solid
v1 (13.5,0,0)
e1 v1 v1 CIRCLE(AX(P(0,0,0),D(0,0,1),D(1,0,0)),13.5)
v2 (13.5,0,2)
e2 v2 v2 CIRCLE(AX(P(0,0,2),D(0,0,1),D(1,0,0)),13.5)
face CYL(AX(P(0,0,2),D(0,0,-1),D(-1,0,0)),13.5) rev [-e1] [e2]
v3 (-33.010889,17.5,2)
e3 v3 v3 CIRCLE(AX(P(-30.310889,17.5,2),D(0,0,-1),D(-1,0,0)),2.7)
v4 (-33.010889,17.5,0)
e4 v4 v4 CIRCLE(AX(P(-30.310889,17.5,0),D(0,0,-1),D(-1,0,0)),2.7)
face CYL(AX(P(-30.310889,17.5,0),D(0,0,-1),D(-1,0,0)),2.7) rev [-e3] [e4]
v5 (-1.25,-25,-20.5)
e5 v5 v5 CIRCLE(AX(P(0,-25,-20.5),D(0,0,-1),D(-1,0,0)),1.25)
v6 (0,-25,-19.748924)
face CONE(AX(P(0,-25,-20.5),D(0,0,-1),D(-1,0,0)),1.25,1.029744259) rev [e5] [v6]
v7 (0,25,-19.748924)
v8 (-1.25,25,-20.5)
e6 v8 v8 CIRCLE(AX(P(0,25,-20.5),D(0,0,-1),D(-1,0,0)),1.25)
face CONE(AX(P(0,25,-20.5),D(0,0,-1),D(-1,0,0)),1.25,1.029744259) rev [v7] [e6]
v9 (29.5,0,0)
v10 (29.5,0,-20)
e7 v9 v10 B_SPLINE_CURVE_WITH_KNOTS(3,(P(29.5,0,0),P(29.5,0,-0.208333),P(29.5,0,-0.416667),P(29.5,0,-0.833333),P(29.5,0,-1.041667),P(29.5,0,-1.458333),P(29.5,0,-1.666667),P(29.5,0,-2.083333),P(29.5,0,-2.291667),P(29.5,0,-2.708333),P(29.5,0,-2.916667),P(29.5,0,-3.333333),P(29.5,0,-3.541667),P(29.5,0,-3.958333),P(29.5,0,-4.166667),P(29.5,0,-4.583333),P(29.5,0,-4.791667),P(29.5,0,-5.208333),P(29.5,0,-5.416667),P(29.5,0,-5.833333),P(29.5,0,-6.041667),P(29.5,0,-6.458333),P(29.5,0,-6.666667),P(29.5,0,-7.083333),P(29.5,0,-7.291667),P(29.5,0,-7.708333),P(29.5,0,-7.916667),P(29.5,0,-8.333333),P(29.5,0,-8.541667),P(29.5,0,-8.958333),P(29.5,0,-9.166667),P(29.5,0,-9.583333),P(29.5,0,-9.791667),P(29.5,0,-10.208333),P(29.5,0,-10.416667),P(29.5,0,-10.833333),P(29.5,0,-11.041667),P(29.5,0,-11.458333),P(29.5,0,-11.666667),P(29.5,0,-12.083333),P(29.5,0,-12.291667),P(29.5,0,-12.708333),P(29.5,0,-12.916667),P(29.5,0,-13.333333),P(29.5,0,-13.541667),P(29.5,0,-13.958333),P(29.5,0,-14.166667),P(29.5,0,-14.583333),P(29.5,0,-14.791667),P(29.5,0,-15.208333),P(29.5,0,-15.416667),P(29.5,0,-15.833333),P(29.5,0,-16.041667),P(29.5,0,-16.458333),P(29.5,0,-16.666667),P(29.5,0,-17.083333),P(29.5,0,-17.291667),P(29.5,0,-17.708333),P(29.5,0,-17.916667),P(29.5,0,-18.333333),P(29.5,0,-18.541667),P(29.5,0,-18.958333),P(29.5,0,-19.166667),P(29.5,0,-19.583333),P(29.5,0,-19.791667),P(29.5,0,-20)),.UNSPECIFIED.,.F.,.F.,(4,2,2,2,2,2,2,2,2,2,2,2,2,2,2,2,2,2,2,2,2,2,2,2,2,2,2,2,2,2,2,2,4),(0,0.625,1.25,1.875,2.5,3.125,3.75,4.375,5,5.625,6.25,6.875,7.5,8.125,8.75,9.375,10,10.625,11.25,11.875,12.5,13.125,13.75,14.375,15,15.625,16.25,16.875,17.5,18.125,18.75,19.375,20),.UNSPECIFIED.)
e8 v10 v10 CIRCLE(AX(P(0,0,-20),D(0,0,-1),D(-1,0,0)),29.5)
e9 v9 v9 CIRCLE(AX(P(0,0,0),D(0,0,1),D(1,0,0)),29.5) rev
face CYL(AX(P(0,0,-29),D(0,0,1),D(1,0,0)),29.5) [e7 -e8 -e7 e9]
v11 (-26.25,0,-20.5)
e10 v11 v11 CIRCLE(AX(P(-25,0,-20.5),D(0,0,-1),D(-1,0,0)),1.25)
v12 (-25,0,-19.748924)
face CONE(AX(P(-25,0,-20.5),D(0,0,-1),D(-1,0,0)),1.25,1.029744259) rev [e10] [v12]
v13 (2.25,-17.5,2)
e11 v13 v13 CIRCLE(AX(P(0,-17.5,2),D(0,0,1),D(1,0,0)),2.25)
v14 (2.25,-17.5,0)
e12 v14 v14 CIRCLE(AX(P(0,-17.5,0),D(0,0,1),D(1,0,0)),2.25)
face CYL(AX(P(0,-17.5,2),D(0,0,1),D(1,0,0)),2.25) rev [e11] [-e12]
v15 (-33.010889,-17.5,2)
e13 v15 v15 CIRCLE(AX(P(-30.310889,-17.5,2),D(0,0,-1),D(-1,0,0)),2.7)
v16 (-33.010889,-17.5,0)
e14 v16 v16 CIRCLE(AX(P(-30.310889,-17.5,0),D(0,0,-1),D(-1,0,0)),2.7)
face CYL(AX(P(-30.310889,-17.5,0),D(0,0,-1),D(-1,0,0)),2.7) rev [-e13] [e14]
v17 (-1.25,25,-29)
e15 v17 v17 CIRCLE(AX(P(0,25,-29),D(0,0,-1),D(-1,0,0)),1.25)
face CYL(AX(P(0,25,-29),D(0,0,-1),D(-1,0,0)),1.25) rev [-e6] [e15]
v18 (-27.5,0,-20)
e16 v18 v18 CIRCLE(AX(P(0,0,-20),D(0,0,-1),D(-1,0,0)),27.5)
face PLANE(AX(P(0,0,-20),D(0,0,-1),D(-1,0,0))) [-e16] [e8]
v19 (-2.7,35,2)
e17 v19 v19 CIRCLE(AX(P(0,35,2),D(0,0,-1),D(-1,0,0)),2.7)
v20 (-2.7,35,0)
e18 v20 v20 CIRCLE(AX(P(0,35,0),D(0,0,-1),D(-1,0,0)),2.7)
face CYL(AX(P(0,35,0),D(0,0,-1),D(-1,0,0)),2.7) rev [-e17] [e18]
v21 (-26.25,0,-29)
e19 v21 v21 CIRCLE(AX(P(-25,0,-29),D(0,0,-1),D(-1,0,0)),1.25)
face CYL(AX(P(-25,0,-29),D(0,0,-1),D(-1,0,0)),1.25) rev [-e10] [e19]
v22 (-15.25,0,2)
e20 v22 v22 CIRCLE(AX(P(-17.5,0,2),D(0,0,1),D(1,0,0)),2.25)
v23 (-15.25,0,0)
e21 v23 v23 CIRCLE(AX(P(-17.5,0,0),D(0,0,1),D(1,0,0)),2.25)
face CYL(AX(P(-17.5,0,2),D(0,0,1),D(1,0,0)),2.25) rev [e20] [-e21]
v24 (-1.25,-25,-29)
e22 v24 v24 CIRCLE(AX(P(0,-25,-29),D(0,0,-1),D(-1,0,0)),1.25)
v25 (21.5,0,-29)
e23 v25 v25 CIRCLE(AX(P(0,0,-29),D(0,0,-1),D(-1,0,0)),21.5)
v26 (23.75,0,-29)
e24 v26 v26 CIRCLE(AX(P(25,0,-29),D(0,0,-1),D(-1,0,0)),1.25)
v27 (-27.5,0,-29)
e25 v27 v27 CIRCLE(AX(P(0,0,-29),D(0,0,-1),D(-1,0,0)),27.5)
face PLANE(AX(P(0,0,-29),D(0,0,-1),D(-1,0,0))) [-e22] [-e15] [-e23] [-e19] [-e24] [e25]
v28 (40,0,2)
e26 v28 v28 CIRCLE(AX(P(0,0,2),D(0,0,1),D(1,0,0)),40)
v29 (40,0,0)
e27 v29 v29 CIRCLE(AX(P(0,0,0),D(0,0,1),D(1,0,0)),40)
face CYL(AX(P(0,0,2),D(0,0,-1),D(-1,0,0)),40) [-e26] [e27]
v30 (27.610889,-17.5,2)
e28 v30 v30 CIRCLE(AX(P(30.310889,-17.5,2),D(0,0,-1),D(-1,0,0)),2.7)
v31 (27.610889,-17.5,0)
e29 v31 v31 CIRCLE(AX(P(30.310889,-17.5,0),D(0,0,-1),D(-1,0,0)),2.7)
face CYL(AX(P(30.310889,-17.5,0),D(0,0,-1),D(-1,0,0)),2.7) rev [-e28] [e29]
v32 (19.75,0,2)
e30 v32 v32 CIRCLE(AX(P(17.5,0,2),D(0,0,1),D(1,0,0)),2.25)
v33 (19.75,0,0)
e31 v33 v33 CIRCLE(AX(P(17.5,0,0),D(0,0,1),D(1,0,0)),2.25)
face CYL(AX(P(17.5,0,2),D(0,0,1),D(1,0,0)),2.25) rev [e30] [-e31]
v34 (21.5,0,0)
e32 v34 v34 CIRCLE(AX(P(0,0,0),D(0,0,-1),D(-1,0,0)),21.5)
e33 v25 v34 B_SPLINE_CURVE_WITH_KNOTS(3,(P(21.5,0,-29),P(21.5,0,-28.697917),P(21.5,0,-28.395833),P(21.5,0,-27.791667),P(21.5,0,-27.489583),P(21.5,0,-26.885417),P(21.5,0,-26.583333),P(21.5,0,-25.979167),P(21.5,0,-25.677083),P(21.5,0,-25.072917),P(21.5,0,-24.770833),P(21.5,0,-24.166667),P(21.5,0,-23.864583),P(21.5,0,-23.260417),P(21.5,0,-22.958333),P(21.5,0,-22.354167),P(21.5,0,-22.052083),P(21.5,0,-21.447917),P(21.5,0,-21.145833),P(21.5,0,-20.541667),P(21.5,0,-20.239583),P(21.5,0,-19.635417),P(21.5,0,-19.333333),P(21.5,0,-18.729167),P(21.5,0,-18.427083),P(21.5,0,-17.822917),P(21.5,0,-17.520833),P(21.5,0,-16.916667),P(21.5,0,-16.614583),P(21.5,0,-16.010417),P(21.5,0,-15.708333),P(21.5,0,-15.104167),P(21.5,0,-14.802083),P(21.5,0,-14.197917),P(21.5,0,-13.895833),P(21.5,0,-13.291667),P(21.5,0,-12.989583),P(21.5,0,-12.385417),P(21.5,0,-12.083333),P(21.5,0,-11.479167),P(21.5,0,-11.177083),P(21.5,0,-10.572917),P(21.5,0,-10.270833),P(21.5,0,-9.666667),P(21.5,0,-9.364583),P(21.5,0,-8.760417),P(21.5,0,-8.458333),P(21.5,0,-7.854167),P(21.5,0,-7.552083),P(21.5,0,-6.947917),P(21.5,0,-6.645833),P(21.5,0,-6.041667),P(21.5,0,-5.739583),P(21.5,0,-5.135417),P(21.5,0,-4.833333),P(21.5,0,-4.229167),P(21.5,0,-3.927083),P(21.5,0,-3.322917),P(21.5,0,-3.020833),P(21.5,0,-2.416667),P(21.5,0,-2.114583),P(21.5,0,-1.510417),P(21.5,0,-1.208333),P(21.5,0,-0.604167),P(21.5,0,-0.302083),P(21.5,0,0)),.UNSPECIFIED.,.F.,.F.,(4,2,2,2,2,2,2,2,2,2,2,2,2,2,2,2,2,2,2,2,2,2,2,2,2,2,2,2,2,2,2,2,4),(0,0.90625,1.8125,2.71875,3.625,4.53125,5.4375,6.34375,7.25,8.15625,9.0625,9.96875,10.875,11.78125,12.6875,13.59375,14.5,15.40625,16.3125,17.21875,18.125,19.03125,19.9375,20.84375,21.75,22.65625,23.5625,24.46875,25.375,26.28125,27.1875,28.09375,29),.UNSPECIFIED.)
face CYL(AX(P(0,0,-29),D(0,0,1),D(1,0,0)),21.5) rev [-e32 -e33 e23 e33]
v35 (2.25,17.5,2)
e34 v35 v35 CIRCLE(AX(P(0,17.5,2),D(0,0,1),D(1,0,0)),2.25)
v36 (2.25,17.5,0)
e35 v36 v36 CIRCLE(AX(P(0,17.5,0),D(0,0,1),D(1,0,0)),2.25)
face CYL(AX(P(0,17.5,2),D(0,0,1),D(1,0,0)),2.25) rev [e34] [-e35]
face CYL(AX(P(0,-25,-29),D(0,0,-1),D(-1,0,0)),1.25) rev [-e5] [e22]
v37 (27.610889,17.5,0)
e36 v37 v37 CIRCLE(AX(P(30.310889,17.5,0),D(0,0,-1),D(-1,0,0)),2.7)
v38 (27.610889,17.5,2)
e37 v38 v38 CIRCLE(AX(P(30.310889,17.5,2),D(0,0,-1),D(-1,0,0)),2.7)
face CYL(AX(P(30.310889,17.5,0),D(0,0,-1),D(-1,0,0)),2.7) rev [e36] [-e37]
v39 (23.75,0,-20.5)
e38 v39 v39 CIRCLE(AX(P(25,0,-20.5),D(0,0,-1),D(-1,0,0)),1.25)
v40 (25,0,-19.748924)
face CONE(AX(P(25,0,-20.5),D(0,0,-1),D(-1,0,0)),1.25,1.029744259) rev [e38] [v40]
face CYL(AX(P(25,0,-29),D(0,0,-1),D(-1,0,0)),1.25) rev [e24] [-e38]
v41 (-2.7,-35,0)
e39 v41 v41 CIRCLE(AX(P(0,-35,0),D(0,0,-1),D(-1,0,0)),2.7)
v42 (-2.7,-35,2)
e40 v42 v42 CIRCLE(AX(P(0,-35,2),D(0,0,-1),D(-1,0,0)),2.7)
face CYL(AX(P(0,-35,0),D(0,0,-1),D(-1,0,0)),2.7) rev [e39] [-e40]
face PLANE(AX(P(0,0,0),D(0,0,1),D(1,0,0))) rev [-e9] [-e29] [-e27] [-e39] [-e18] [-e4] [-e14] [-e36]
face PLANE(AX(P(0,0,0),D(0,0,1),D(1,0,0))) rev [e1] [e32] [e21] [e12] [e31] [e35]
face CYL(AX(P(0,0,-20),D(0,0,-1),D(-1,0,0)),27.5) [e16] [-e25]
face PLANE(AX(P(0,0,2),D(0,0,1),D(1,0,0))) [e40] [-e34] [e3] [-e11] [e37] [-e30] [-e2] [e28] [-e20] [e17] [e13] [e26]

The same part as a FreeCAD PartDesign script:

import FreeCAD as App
import Part
import Sketcher
from FreeCAD import Vector

doc = App.newDocument("Part")
body = doc.addObject("PartDesign::Body", "Body")

# Sketch on XY plane
sketch1 = body.newObject("Sketcher::SketchObject", "Sketch")
sketch1.AttachmentSupport = (doc.getObject("XY_Plane"), [""])
sketch1.MapMode = "FlatFace"
sketch1.addGeometry(Part.Circle(Vector(0, 0, 0), Vector(0, 0, 1), 40), False)
sketch1.addGeometry(Part.Circle(Vector(0, 0, 0), Vector(0, 0, 1), 14), False)
sketch1.addConstraint(Sketcher.Constraint("Coincident", 0, 3, -1, 1))
sketch1.addConstraint(Sketcher.Constraint("Coincident", 1, 3, -1, 1))
sketch1.addConstraint(Sketcher.Constraint("Diameter", 0, 80.0))
sketch1.addConstraint(Sketcher.Constraint("Diameter", 1, 27.0))
pad1 = body.newObject("PartDesign::Pad", "Pad")
pad1.Profile = sketch1
pad1.Length = 2

# Sketch on XY plane
sketch2 = body.newObject("Sketcher::SketchObject", "Sketch001")
sketch2.AttachmentSupport = (doc.getObject("XY_Plane"), [""])
sketch2.MapMode = "FlatFace"
sketch2.AttachmentOffset = App.Placement(Vector(0, 0, 2), App.Rotation())
sketch2.addGeometry(Part.Circle(Vector(-17.5, 0, 0), Vector(0, 0, 1), 2.2), False)
sketch2.addGeometry(Part.Circle(Vector(0, 17.5, 0), Vector(0, 0, 1), 2.2), False)
sketch2.addGeometry(Part.Circle(Vector(17.5, 0, 0), Vector(0, 0, 1), 2.2), False)
sketch2.addGeometry(Part.Circle(Vector(0, -17.5, 0), Vector(0, 0, 1), 2.2), False)
sketch2.addConstraint(Sketcher.Constraint("Equal", 0, 1))
sketch2.addConstraint(Sketcher.Constraint("Equal", 1, 2))
sketch2.addConstraint(Sketcher.Constraint("Equal", 2, 3))
sketch2.addConstraint(Sketcher.Constraint("Symmetric", 0, 3, 2, 3, -1, 1))
sketch2.addConstraint(Sketcher.Constraint("Symmetric", 1, 3, 3, 3, -1, 1))
sketch2.addConstraint(Sketcher.Constraint("PointOnObject", 0, 3, -1))
sketch2.addConstraint(Sketcher.Constraint("PointOnObject", 1, 3, -2))
sketch2.addConstraint(Sketcher.Constraint("Diameter", 0, 4.5))
sketch2.addConstraint(Sketcher.Constraint("DistanceX", 0, 3, 2, 3, 35.0))
sketch2.addConstraint(Sketcher.Constraint("DistanceY", 3, 3, 1, 3, 35.0))
doc.recompute()
hole = body.newObject("PartDesign::Hole", "Hole")
hole.Profile = sketch2
hole.ThreadType = "None"
hole.Diameter = 4.5
hole.DepthType = "ThroughAll"

# Sketch on XY plane
sketch3 = body.newObject("Sketcher::SketchObject", "Sketch002")
sketch3.AttachmentSupport = (doc.getObject("XY_Plane"), [""])
sketch3.MapMode = "FlatFace"
sketch3.addGeometry(Part.Circle(Vector(30.3, 17.5, 0), Vector(0, 0, 1), 2.7), False)
sketch3.addGeometry(Part.Circle(Vector(0, 35, 0), Vector(0, 0, 1), 2.7), False)
sketch3.addGeometry(Part.Circle(Vector(-30.3, 17.5, 0), Vector(0, 0, 1), 2.7), False)
sketch3.addGeometry(Part.Circle(Vector(-30.3, -17.5, 0), Vector(0, 0, 1), 2.7), False)
sketch3.addGeometry(Part.Circle(Vector(0, -35, 0), Vector(0, 0, 1), 2.7), False)
sketch3.addGeometry(Part.Circle(Vector(30.3, -17.5, 0), Vector(0, 0, 1), 2.7), False)
sketch3.addConstraint(Sketcher.Constraint("Equal", 0, 1))
sketch3.addConstraint(Sketcher.Constraint("Equal", 1, 2))
sketch3.addConstraint(Sketcher.Constraint("Equal", 2, 3))
sketch3.addConstraint(Sketcher.Constraint("Equal", 3, 4))
sketch3.addConstraint(Sketcher.Constraint("Equal", 4, 5))
sketch3.addConstraint(Sketcher.Constraint("Symmetric", 0, 3, 3, 3, -1, 1))
sketch3.addConstraint(Sketcher.Constraint("Symmetric", 1, 3, 4, 3, -1, 1))
sketch3.addConstraint(Sketcher.Constraint("Symmetric", 2, 3, 5, 3, -1, 1))
sketch3.addConstraint(Sketcher.Constraint("Symmetric", 0, 3, 2, 3, -2))
sketch3.addConstraint(Sketcher.Constraint("PointOnObject", 1, 3, -2))
sketch3.addConstraint(Sketcher.Constraint("Diameter", 0, 5.4))
sketch3.addConstraint(Sketcher.Constraint("DistanceY", -1, 1, 1, 3, 35.0))
sketch3.addConstraint(Sketcher.Constraint("DistanceY", 3, 3, 2, 3, 35.0))
sketch3.addConstraint(Sketcher.Constraint("DistanceX", -1, 1, 0, 3, 30.310889))
doc.recompute()
hole2 = body.newObject("PartDesign::Hole", "Hole001")
hole2.Profile = sketch3
hole2.ThreadType = "None"
hole2.Diameter = 5.4
hole2.DepthType = "ThroughAll"
hole2.Reversed = True

# Sketch on XY plane
sketch4 = body.newObject("Sketcher::SketchObject", "Sketch003")
sketch4.AttachmentSupport = (doc.getObject("XY_Plane"), [""])
sketch4.MapMode = "FlatFace"
sketch4.addGeometry(Part.Circle(Vector(0, 0, 0), Vector(0, 0, 1), 30), False)
sketch4.addGeometry(Part.Circle(Vector(0, 0, 0), Vector(0, 0, 1), 22), False)
sketch4.addConstraint(Sketcher.Constraint("Coincident", 0, 3, -1, 1))
sketch4.addConstraint(Sketcher.Constraint("Coincident", 1, 3, -1, 1))
sketch4.addConstraint(Sketcher.Constraint("Diameter", 0, 59.0))
sketch4.addConstraint(Sketcher.Constraint("Diameter", 1, 43.0))
pad2 = body.newObject("PartDesign::Pad", "Pad001")
pad2.Profile = sketch4
pad2.Length = 29
pad2.Reversed = True

# Sketch on XY plane
sketch5 = body.newObject("Sketcher::SketchObject", "Sketch004")
sketch5.AttachmentSupport = (doc.getObject("XY_Plane"), [""])
sketch5.MapMode = "FlatFace"
sketch5.AttachmentOffset = App.Placement(Vector(0, 0, -20), App.Rotation())
sketch5.addGeometry(Part.Circle(Vector(0, 0, 0), Vector(0, 0, 1), 30), False)
sketch5.addGeometry(Part.Circle(Vector(0, 0, 0), Vector(0, 0, 1), 28), False)
sketch5.addConstraint(Sketcher.Constraint("Coincident", 0, 3, -1, 1))
sketch5.addConstraint(Sketcher.Constraint("Coincident", 1, 3, -1, 1))
sketch5.addConstraint(Sketcher.Constraint("Diameter", 0, 59.0))
sketch5.addConstraint(Sketcher.Constraint("Diameter", 1, 55.0))
pocket1 = body.newObject("PartDesign::Pocket", "Pocket")
pocket1.Profile = sketch5
pocket1.Length = 9

# Sketch on XY plane
sketch6 = body.newObject("Sketcher::SketchObject", "Sketch005")
sketch6.AttachmentSupport = (doc.getObject("XY_Plane"), [""])
sketch6.MapMode = "FlatFace"
sketch6.AttachmentOffset = App.Placement(Vector(0, 0, -29), App.Rotation())
sketch6.addGeometry(Part.Circle(Vector(25, 0, 0), Vector(0, 0, 1), 1.2), False)
sketch6.addGeometry(Part.Circle(Vector(0, 25, 0), Vector(0, 0, 1), 1.2), False)
sketch6.addGeometry(Part.Circle(Vector(-25, 0, 0), Vector(0, 0, 1), 1.2), False)
sketch6.addGeometry(Part.Circle(Vector(0, -25, 0), Vector(0, 0, 1), 1.2), False)
sketch6.addConstraint(Sketcher.Constraint("Equal", 0, 1))
sketch6.addConstraint(Sketcher.Constraint("Equal", 1, 2))
sketch6.addConstraint(Sketcher.Constraint("Equal", 2, 3))
sketch6.addConstraint(Sketcher.Constraint("Symmetric", 0, 3, 2, 3, -1, 1))
sketch6.addConstraint(Sketcher.Constraint("Symmetric", 1, 3, 3, 3, -1, 1))
sketch6.addConstraint(Sketcher.Constraint("PointOnObject", 0, 3, -1))
sketch6.addConstraint(Sketcher.Constraint("PointOnObject", 1, 3, -2))
sketch6.addConstraint(Sketcher.Constraint("Diameter", 0, 2.5))
sketch6.addConstraint(Sketcher.Constraint("DistanceX", -1, 1, 0, 3, 25.0))
sketch6.addConstraint(Sketcher.Constraint("DistanceY", -1, 1, 1, 3, 25.0))
doc.recompute()
hole3 = body.newObject("PartDesign::Hole", "Hole002")
hole3.Profile = sketch6
hole3.ThreadType = "None"
hole3.Diameter = 2.5
hole3.DepthType = "Dimension"
hole3.Depth = 8.5
hole3.DrillPoint = "Angled"
hole3.DrillPointAngle = 118
hole3.Reversed = True

doc.recompute()
